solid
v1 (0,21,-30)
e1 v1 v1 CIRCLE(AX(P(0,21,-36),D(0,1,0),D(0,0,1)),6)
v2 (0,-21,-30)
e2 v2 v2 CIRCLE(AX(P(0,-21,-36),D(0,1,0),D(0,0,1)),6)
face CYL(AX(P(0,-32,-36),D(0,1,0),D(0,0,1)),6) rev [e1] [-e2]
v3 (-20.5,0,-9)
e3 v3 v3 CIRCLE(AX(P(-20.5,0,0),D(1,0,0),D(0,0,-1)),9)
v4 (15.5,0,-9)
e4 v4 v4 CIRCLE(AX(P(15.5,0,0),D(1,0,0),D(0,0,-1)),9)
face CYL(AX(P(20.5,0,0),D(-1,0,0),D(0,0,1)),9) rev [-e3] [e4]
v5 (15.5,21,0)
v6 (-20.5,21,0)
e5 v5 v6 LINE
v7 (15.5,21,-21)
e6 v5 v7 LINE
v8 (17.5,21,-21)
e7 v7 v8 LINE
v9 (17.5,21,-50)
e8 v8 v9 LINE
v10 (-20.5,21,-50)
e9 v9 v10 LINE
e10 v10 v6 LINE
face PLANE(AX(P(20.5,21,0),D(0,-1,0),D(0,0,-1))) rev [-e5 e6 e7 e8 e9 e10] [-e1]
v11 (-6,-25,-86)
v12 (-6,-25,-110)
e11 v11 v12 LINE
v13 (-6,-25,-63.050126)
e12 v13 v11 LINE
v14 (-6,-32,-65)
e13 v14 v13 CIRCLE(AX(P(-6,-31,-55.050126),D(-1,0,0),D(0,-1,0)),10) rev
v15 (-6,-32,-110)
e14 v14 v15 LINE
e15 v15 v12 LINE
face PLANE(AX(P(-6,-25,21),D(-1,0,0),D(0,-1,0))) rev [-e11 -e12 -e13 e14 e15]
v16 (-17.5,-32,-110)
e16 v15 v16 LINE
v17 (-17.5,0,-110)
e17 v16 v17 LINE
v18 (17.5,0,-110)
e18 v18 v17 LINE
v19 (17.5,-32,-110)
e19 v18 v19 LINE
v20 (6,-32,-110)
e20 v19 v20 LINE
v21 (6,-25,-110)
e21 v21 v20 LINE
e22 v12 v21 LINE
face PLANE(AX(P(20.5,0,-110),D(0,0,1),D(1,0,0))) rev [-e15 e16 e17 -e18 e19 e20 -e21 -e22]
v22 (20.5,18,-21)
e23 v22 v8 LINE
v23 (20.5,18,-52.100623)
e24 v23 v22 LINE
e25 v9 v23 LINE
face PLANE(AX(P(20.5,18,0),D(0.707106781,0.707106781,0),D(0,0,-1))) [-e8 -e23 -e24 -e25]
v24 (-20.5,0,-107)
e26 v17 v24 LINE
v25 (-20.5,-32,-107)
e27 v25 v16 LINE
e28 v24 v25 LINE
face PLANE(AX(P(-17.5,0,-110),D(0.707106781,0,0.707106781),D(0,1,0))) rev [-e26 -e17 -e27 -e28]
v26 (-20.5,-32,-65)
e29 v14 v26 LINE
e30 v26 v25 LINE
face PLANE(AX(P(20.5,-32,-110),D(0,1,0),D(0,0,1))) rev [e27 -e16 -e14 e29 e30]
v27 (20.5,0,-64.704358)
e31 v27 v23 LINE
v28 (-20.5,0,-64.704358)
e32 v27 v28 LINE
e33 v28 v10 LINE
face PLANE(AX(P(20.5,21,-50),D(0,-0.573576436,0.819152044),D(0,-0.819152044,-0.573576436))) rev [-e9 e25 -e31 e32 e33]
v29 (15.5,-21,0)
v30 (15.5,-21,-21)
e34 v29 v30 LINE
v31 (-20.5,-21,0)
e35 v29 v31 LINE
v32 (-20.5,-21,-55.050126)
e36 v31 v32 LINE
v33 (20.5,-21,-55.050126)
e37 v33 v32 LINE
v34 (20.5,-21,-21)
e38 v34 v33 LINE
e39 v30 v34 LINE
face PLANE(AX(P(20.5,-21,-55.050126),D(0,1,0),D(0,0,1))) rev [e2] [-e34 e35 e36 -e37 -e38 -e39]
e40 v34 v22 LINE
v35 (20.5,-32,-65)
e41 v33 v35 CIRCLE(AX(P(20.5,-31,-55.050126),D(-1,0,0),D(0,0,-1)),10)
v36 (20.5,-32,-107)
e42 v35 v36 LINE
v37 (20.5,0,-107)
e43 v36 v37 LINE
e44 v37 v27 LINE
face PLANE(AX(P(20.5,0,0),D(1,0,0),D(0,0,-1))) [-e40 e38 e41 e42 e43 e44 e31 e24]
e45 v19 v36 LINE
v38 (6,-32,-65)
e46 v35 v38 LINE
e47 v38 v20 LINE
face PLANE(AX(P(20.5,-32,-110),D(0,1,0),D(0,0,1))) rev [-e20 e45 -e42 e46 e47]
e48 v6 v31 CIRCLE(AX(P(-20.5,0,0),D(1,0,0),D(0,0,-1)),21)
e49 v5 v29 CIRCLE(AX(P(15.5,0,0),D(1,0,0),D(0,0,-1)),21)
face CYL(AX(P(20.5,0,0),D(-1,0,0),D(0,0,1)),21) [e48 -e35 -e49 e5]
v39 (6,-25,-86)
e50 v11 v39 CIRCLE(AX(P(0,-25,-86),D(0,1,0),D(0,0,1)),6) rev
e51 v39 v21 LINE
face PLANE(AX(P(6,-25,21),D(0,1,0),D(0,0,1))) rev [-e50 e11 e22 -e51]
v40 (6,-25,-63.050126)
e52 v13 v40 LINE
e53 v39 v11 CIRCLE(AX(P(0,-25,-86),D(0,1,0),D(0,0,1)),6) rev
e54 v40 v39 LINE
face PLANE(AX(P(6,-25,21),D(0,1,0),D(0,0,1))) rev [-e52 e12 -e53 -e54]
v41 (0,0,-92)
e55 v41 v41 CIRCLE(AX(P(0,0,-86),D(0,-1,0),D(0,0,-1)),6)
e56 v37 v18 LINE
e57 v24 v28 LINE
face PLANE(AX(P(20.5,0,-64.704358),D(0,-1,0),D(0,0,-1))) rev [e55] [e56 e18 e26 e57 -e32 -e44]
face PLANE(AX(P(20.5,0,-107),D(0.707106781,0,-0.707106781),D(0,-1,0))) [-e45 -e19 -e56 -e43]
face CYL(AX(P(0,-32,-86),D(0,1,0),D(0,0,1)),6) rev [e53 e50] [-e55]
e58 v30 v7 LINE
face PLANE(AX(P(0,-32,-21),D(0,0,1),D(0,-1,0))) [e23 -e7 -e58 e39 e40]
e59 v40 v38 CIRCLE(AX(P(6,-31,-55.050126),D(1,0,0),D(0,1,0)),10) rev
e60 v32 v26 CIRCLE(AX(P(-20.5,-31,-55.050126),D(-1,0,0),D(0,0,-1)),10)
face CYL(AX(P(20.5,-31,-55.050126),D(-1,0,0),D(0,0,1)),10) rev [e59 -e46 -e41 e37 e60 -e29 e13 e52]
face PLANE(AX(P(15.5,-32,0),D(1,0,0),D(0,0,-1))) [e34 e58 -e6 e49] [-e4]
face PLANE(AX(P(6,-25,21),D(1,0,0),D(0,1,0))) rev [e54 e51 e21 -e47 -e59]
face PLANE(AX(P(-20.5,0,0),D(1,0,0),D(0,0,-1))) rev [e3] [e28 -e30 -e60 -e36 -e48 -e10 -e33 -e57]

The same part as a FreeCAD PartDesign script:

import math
import FreeCAD as App
import Part
import Sketcher

V = App.Vector
Q = App.Units.Quantity


def edges_at(feature, points):
    """Names of the edges that pass closest to the given points."""
    edges = feature.Shape.Edges
    near = lambda p: min(range(len(edges)), key=lambda i: edges[i].distToShape(Part.Vertex(*p))[0])
    return sorted({f"Edge{near(p) + 1}" for p in points})

doc = App.newDocument("Part")
params = doc.addObject("Spreadsheet::Sheet", "Params")
for row, (alias, value) in enumerate([
    ("sketch1_diameter", "18 mm"),
    ("sketch1_radius", "21 mm"),
    ("sketch1_radius2", "10 mm"),
    ("sketch1_width", "32 mm"),
    ("sketch1_height", "50 mm"),
    ("pad1_length", "41 mm"),
    ("sketch2_radius", "6 mm"),
    ("sketch2_width", "5 mm"),
    ("sketch2_height", "42 mm"),
    ("sketch3_width", "12 mm"),
    ("sketch3_height", "7 mm"),
    ("chamfer_size", "3 mm"),
], start=1):
    params.set(f"A{row}", alias)
    params.set(f"B{row}", "=" + value)
    params.setAlias(f"B{row}", alias)

body = doc.addObject("PartDesign::Body", "Body")

# Sketch on YZ plane
sketch1 = doc.addObject("Sketcher::SketchObject", "Sketch")
body.addObject(sketch1)
sketch1.AttachmentSupport = (doc.YZ_Plane, [""])
sketch1.MapMode = "FlatFace"
sketch1.addGeometry([
    Part.LineSegment(V(21, -50, 0), V(21, 0, 0)),  # 0
    Part.ArcOfCircle(Part.Circle(V(0, 0, 0), V(0, 0, 1), 21), math.radians(0), math.radians(180)),  # 1
    Part.LineSegment(V(-21, 0, 0), V(-21, -55, 0)),  # 2
    Part.ArcOfCircle(Part.Circle(V(-31, -55, 0), V(0, 0, 1), 10), math.radians(-96), math.radians(0)),  # 3
    Part.LineSegment(V(-32, -65, 0), V(-32, -110, 0)),  # 4
    Part.LineSegment(V(-32, -110, 0), V(0, -110, 0)),  # 5
    Part.LineSegment(V(0, -110, 0), V(0, -65, 0)),  # 6
    Part.LineSegment(V(0, -65, 0), V(21, -50, 0)),  # 7
    Part.Circle(V(0, 0, 0), V(0, 0, 1), 9),  # 8
], False)
sketch1.addConstraint([
    Sketcher.Constraint("Tangent", 0, 2, 1, 1),
    Sketcher.Constraint("Tangent", 1, 2, 2, 1),
    Sketcher.Constraint("Tangent", 2, 2, 3, 2),
    Sketcher.Constraint("Coincident", 3, 1, 4, 1),
    Sketcher.Constraint("Coincident", 4, 2, 5, 1),
    Sketcher.Constraint("Coincident", 5, 2, 6, 1),
    Sketcher.Constraint("Coincident", 6, 2, 7, 1),
    Sketcher.Constraint("Coincident", 7, 2, 0, 1),
    Sketcher.Constraint("Vertical", 0),
    Sketcher.Constraint("Vertical", 2),
    Sketcher.Constraint("Vertical", 4),
    Sketcher.Constraint("Horizontal", 5),
    Sketcher.Constraint("Vertical", 6),
    Sketcher.Constraint("Coincident", 1, 3, -1, 1),
    Sketcher.Constraint("Coincident", 8, 3, -1, 1),
    Sketcher.Constraint("PointOnObject", 5, 2, -2),
    Sketcher.Constraint("Diameter", 8, Q("18 mm")),
    Sketcher.Constraint("Radius", 1, Q("21 mm")),
    Sketcher.Constraint("Radius", 3, Q("10 mm")),
    Sketcher.Constraint("DistanceX", 5, 1, 5, 2, Q("32 mm")),
    Sketcher.Constraint("DistanceY", 0, 1, 0, 2, Q("50 mm")),
    Sketcher.Constraint("DistanceY", 4, 2, 4, 1, Q("45 mm")),
    Sketcher.Constraint("Angle", 7, Q("35 deg")),
    Sketcher.Constraint("DistanceY", 3, 1, -1, 1, Q("65 mm")),
])
sketch1.setExpression("Constraints[16]", "Params.sketch1_diameter")
sketch1.setExpression("Constraints[17]", "Params.sketch1_radius")
sketch1.setExpression("Constraints[18]", "Params.sketch1_radius2")
sketch1.setExpression("Constraints[19]", "Params.sketch1_width")
sketch1.setExpression("Constraints[20]", "Params.sketch1_height")
pad1 = doc.addObject("PartDesign::Pad", "Pad")
body.addObject(pad1)
pad1.Profile = sketch1
pad1.setExpression("Length", "Params.pad1_length")
pad1.Midplane = True

# Sketch on XZ plane
sketch2 = doc.addObject("Sketcher::SketchObject", "Sketch001")
body.addObject(sketch2)
sketch2.AttachmentSupport = (doc.XZ_Plane, [""])
sketch2.MapMode = "FlatFace"
sketch2.AttachmentOffset = App.Placement(V(0, 0, -21), App.Rotation())
sketch2.addGeometry([
    Part.LineSegment(V(16, 21, 0), V(20, 21, 0)),  # 0
    Part.LineSegment(V(20, 21, 0), V(20, -21, 0)),  # 1
    Part.LineSegment(V(20, -21, 0), V(16, -21, 0)),  # 2
    Part.LineSegment(V(16, -21, 0), V(16, 21, 0)),  # 3
    Part.ArcOfCircle(Part.Circle(V(0, -36, 0), V(0, 0, 1), 6), math.radians(90), math.radians(270)),  # 4
    Part.ArcOfCircle(Part.Circle(V(0, -36, 0), V(0, 0, 1), 6), math.radians(0), math.radians(90)),  # 5
    Part.ArcOfCircle(Part.Circle(V(0, -36, 0), V(0, 0, 1), 6), math.radians(-90), math.radians(0)),  # 6
    Part.ArcOfCircle(Part.Circle(V(0, -86, 0), V(0, 0, 1), 6), math.radians(-90), math.radians(0)),  # 7
    Part.ArcOfCircle(Part.Circle(V(0, -86, 0), V(0, 0, 1), 6), math.radians(90), math.radians(270)),  # 8
    Part.ArcOfCircle(Part.Circle(V(0, -86, 0), V(0, 0, 1), 6), math.radians(0), math.radians(90)),  # 9
], False)
sketch2.addConstraint([
    Sketcher.Constraint("Coincident", 0, 2, 1, 1),
    Sketcher.Constraint("Coincident", 1, 2, 2, 1),
    Sketcher.Constraint("Coincident", 2, 2, 3, 1),
    Sketcher.Constraint("Coincident", 3, 2, 0, 1),
    Sketcher.Constraint("Tangent", 4, 1, 5, 2),
    Sketcher.Constraint("Tangent", 5, 1, 6, 2),
    Sketcher.Constraint("Tangent", 6, 1, 4, 2),
    Sketcher.Constraint("Tangent", 7, 1, 8, 2),
    Sketcher.Constraint("Tangent", 8, 1, 9, 2),
    Sketcher.Constraint("Tangent", 9, 1, 7, 2),
    Sketcher.Constraint("Horizontal", 0),
    Sketcher.Constraint("Vertical", 1),
    Sketcher.Constraint("Horizontal", 2),
    Sketcher.Constraint("Vertical", 3),
    Sketcher.Constraint("Equal", 6, 7),
    Sketcher.Constraint("PointOnObject", 4, 3, -2),
    Sketcher.Constraint("PointOnObject", 7, 3, -2),
    Sketcher.Constraint("PointOnObject", 4, 1, -2),
    Sketcher.Constraint("PointOnObject", 6, 1, -2),
    Sketcher.Constraint("PointOnObject", 7, 1, -2),
    Sketcher.Constraint("PointOnObject", 8, 1, -2),
    Sketcher.Constraint("Horizontal", 6, 3, 5, 1),
    Sketcher.Constraint("Horizontal", 8, 3, 9, 1),
    Sketcher.Constraint("Radius", 4, Q("6 mm")),
    Sketcher.Constraint("DistanceX", 0, 1, 0, 2, Q("5 mm")),
    Sketcher.Constraint("DistanceY", 1, 2, 1, 1, Q("42 mm")),
    Sketcher.Constraint("DistanceY", 4, 3, -1, 1, Q("36 mm")),
    Sketcher.Constraint("DistanceY", 7, 3, -1, 1, Q("86 mm")),
    Sketcher.Constraint("DistanceY", -1, 1, 0, 2, Q("21 mm")),
    Sketcher.Constraint("DistanceX", -1, 1, 0, 2, Q("20.5 mm")),
])
sketch2.setExpression("Constraints[23]", "Params.sketch2_radius")
sketch2.setExpression("Constraints[24]", "Params.sketch2_width")
sketch2.setExpression("Constraints[25]", "Params.sketch2_height")
pocket1 = doc.addObject("PartDesign::Pocket", "Pocket")
body.addObject(pocket1)
pocket1.Profile = sketch2
pocket1.Type = "ThroughAll"
pocket1.Reversed = True

# Sketch on XY plane
sketch3 = doc.addObject("Sketcher::SketchObject", "Sketch002")
body.addObject(sketch3)
sketch3.AttachmentSupport = (doc.XY_Plane, [""])
sketch3.MapMode = "FlatFace"
sketch3.AttachmentOffset = App.Placement(V(0, 0, -110), App.Rotation())
sketch3.addGeometry([
    Part.LineSegment(V(6, -25, 0), V(6, -32, 0)),
    Part.LineSegment(V(6, -32, 0), V(-6, -32, 0)),
    Part.LineSegment(V(-6, -32, 0), V(-6, -25, 0)),
    Part.LineSegment(V(-6, -25, 0), V(6, -25, 0)),
], False)
sketch3.addConstraint([
    Sketcher.Constraint("Coincident", 0, 2, 1, 1),
    Sketcher.Constraint("Coincident", 1, 2, 2, 1),
    Sketcher.Constraint("Coincident", 2, 2, 3, 1),
    Sketcher.Constraint("Coincident", 3, 2, 0, 1),
    Sketcher.Constraint("Vertical", 0),
    Sketcher.Constraint("Horizontal", 1),
    Sketcher.Constraint("Vertical", 2),
    Sketcher.Constraint("Horizontal", 3),
    Sketcher.Constraint("DistanceX", 1, 2, 1, 1, Q("12 mm")),
    Sketcher.Constraint("DistanceY", 0, 2, 0, 1, Q("7 mm")),
    Sketcher.Constraint("DistanceX", -1, 1, 0, 2, Q("6 mm")),
    Sketcher.Constraint("DistanceY", 0, 2, -1, 1, Q("32 mm")),
])
sketch3.setExpression("Constraints[8]", "Params.sketch3_width")
sketch3.setExpression("Constraints[9]", "Params.sketch3_height")
pocket2 = doc.addObject("PartDesign::Pocket", "Pocket001")
body.addObject(pocket2)
pocket2.Profile = sketch3
pocket2.Type = "ThroughAll"
pocket2.Reversed = True
doc.recompute()

chamfer = doc.addObject("PartDesign::Chamfer", "Chamfer")
body.addObject(chamfer)
chamfer.Base = (pocket2, edges_at(pocket2, [(20.5, -16, -110), (20.5, 21, -35.5), (-20.5, -16, -110)]))
chamfer.setExpression("Size", "Params.chamfer_size")

doc.recompute()
